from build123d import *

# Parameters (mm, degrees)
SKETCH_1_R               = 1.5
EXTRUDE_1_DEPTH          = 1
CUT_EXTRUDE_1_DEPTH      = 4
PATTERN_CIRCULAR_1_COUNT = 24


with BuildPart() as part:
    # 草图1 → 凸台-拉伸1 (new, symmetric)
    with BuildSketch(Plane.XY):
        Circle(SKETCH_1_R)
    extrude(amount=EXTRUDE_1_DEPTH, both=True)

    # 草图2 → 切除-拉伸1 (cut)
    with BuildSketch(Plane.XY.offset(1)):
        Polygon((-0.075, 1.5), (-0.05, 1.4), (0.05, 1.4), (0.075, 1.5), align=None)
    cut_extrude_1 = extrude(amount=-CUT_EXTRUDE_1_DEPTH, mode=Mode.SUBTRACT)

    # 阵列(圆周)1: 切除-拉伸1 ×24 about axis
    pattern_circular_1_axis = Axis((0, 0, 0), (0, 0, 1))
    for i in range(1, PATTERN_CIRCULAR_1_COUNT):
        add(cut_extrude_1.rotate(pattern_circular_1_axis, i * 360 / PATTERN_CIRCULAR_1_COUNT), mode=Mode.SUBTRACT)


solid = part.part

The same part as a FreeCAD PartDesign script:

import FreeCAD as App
import Part
import Sketcher
from FreeCAD import Vector

doc = App.newDocument("Part")
body = doc.addObject("PartDesign::Body", "Body")

sketch1 = body.newObject("Sketcher::SketchObject", "Sketch")
sketch1.AttachmentSupport = (doc.getObject("XY_Plane"), [""])
sketch1.MapMode = "FlatFace"
sketch1.addGeometry(Part.Circle(Vector(0, 0, 0), Vector(0, 0, 1), 1.5), False)
sketch1.addConstraint(Sketcher.Constraint("Coincident", 0, 3, -1, 1))
sketch1.addConstraint(Sketcher.Constraint("Diameter", 0, 3.0))
pad1 = body.newObject("PartDesign::Pad", "Pad")
pad1.Profile = sketch1
pad1.Length = 2
pad1.Midplane = True

sketch2 = body.newObject("Sketcher::SketchObject", "Sketch001")
sketch2.AttachmentSupport = (doc.getObject("XY_Plane"), [""])
sketch2.MapMode = "FlatFace"
sketch2.AttachmentOffset = App.Placement(Vector(0, 0, 1), App.Rotation())
sketch2.addGeometry(Part.LineSegment(Vector(-0.075, 1.5, 0), Vector(-0.05, 1.4, 0)), False)
sketch2.addGeometry(Part.LineSegment(Vector(-0.05, 1.4, 0), Vector(0.05, 1.4, 0)), False)
sketch2.addGeometry(Part.LineSegment(Vector(0.05, 1.4, 0), Vector(0.075, 1.5, 0)), False)
sketch2.addGeometry(Part.LineSegment(Vector(0.075, 1.5, 0), Vector(-0.075, 1.5, 0)), False)
sketch2.addConstraint(Sketcher.Constraint("Coincident", 0, 2, 1, 1))
sketch2.addConstraint(Sketcher.Constraint("Coincident", 1, 2, 2, 1))
sketch2.addConstraint(Sketcher.Constraint("Coincident", 2, 2, 3, 1))
sketch2.addConstraint(Sketcher.Constraint("Coincident", 3, 2, 0, 1))
sketch2.addConstraint(Sketcher.Constraint("Horizontal", 1))
sketch2.addConstraint(Sketcher.Constraint("Horizontal", 3))
sketch2.addConstraint(Sketcher.Constraint("Equal", 0, 2))
sketch2.addConstraint(Sketcher.Constraint("DistanceX", 1, 1, 1, 2, 0.1))
sketch2.addConstraint(Sketcher.Constraint("DistanceX", 3, 2, 3, 1, 0.15))
sketch2.addConstraint(Sketcher.Constraint("DistanceY", -1, 1, 0, 2, 1.4))
sketch2.addConstraint(Sketcher.Constraint("DistanceY", -1, 1, 2, 2, 1.5))
sketch2.addConstraint(Sketcher.Constraint("DistanceX", 0, 2, -1, 1, 0.05))
pocket1 = body.newObject("PartDesign::Pocket", "Pocket")
pocket1.Profile = sketch2
pocket1.Length = 4
doc.recompute()

polarpattern = body.newObject("PartDesign::PolarPattern", "PolarPattern")
polarpattern.Originals = [pocket1]
polarpattern.Axis = (doc.getObject("Z_Axis"), [""])
polarpattern.Angle = 360
polarpattern.Occurrences = 24
body.Tip = polarpattern

doc.recompute()
